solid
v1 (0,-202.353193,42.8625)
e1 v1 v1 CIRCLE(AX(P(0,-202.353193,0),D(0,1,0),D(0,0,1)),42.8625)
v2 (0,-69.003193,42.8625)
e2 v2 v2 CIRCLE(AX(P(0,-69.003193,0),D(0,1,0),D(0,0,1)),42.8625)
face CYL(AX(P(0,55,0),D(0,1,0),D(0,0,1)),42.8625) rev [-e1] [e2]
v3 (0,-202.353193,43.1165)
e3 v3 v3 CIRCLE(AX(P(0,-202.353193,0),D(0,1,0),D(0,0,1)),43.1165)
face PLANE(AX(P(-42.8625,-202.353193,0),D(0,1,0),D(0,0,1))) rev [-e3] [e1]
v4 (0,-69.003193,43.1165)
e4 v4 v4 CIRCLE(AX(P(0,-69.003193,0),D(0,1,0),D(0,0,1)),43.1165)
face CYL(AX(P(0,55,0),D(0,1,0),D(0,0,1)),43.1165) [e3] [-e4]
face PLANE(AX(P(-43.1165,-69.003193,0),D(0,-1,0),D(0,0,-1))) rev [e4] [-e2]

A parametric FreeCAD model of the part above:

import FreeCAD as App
import Part
import Sketcher
from FreeCAD import Vector
Q = App.Units.Quantity

doc = App.newDocument("Part")
params = doc.addObject("Spreadsheet::Sheet", "Params")
for row, (alias, value) in enumerate([
    ("sketch1_width", "0.01 in"),
    ("sketch1_height", "5.25 in"),
    ("revolution_angle", "360 deg"),
], start=1):
    params.set(f"A{row}", alias)
    params.set(f"B{row}", "=" + value)
    params.setAlias(f"B{row}", alias)

body = doc.addObject("PartDesign::Body", "Body")

# Sketch on XY plane
sketch1 = body.newObject("Sketcher::SketchObject", "Sketch")
sketch1.AttachmentSupport = (doc.getObject("XY_Plane"), [""])
sketch1.MapMode = "FlatFace"
sketch1.addGeometry(Part.LineSegment(Vector(-43.12, -69, 0), Vector(-43.12, -202.35, 0)), False)
sketch1.addGeometry(Part.LineSegment(Vector(-43.12, -202.35, 0), Vector(-42.86, -202.35, 0)), False)
sketch1.addGeometry(Part.LineSegment(Vector(-42.86, -202.35, 0), Vector(-42.86, -69, 0)), False)
sketch1.addGeometry(Part.LineSegment(Vector(-42.86, -69, 0), Vector(-43.12, -69, 0)), False)
sketch1.addConstraint(Sketcher.Constraint("Coincident", 0, 2, 1, 1))
sketch1.addConstraint(Sketcher.Constraint("Coincident", 1, 2, 2, 1))
sketch1.addConstraint(Sketcher.Constraint("Coincident", 2, 2, 3, 1))
sketch1.addConstraint(Sketcher.Constraint("Coincident", 3, 2, 0, 1))
sketch1.addConstraint(Sketcher.Constraint("Vertical", 0))
sketch1.addConstraint(Sketcher.Constraint("Horizontal", 1))
sketch1.addConstraint(Sketcher.Constraint("Vertical", 2))
sketch1.addConstraint(Sketcher.Constraint("Horizontal", 3))
sketch1.addConstraint(Sketcher.Constraint("DistanceX", 1, 1, 1, 2, Q("0.01 in")))
sketch1.addConstraint(Sketcher.Constraint("DistanceY", 0, 2, 0, 1, Q("5.25 in")))
sketch1.addConstraint(Sketcher.Constraint("DistanceX", 1, 2, -1, 1, Q("1.6875 in")))
sketch1.addConstraint(Sketcher.Constraint("DistanceY", 0, 2, -1, 1, 202.353193))
sketch1.setExpression("Constraints[8]", "Params.sketch1_width")
sketch1.setExpression("Constraints[9]", "Params.sketch1_height")
revolution = body.newObject("PartDesign::Revolution", "Revolution")
revolution.Profile = sketch1
revolution.ReferenceAxis = (sketch1, ["V_Axis"])
revolution.setExpression("Angle", "Params.revolution_angle")

doc.recompute()
